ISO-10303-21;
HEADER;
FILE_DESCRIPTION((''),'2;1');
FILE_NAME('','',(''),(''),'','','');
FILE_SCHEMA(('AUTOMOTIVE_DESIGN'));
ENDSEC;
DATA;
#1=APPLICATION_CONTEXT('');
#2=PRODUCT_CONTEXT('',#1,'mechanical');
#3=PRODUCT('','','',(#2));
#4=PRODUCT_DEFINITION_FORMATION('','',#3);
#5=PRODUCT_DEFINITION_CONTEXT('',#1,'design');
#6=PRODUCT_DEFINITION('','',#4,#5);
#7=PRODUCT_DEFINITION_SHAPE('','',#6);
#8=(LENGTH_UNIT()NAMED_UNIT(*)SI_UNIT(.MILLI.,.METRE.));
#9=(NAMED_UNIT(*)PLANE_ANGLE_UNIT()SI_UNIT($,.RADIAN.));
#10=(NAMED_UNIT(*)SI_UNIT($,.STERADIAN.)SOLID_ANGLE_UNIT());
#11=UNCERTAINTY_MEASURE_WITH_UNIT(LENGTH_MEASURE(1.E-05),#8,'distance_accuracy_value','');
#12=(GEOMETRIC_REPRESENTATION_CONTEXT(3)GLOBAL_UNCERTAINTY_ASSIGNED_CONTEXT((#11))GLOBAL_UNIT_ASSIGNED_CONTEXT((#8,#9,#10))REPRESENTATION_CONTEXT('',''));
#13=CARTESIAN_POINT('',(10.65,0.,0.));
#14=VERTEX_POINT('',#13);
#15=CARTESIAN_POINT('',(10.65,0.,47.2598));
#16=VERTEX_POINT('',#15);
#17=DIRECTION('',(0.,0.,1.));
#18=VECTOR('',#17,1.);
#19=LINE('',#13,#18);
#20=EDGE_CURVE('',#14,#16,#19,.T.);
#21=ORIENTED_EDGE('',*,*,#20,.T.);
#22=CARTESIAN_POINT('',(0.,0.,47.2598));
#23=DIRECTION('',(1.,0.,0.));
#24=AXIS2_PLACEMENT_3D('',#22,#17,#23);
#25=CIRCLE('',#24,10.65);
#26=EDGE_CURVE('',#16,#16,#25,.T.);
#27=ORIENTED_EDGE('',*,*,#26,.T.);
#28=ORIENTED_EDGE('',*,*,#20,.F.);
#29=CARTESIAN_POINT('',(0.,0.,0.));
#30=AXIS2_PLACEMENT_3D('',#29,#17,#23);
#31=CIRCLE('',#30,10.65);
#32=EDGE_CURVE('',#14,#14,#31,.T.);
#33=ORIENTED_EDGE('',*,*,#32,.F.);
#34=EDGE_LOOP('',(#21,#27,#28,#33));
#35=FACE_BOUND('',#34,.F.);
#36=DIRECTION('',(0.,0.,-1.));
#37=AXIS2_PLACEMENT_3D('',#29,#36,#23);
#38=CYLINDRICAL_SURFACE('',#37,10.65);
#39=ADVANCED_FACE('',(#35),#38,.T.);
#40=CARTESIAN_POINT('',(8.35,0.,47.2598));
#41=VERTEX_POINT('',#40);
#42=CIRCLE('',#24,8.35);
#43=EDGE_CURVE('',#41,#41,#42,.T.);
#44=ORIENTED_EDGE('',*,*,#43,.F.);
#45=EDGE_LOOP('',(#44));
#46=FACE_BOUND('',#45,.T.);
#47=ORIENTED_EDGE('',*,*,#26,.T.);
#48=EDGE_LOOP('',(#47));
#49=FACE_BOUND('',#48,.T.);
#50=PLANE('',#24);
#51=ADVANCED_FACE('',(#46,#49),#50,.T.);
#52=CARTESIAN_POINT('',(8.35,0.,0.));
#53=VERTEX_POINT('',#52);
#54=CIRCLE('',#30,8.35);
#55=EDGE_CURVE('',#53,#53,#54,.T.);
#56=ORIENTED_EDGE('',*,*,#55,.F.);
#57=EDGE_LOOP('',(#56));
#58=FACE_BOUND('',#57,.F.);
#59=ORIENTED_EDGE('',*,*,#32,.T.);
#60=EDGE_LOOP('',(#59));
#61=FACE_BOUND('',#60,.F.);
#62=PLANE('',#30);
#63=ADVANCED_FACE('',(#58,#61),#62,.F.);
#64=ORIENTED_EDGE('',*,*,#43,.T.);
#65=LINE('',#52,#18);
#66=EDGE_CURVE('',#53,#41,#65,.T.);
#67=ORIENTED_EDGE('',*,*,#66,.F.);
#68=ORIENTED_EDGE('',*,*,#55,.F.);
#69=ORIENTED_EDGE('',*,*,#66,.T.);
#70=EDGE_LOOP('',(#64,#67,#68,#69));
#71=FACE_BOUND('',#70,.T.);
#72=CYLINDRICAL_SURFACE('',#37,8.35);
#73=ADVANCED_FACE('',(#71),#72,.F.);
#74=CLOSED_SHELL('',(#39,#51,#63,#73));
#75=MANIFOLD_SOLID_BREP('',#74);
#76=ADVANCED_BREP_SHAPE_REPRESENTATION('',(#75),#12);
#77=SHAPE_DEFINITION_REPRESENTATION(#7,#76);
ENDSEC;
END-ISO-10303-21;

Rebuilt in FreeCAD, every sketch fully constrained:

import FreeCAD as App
import Part
import Sketcher

V = App.Vector
Q = App.Units.Quantity

doc = App.newDocument("Part")
body = doc.addObject("PartDesign::Body", "Body")

# Sketch on XY plane
sketch1 = body.newObject("Sketcher::SketchObject", "Sketch")
sketch1.AttachmentSupport = (doc.getObject("XY_Plane"), [""])
sketch1.MapMode = "FlatFace"
sketch1.addGeometry(Part.Circle(V(0, 0, 0), V(0, 0, 1), 11), False)
sketch1.addGeometry(Part.Circle(V(0, 0, 0), V(0, 0, 1), 8), False)
sketch1.addConstraint(Sketcher.Constraint("Coincident", 0, 3, -1, 1))
sketch1.addConstraint(Sketcher.Constraint("Coincident", 1, 3, -1, 1))
sketch1.addConstraint(Sketcher.Constraint("Diameter", 0, Q("21.3 mm")))
sketch1.addConstraint(Sketcher.Constraint("Diameter", 1, Q("16.7 mm")))
pad1 = body.newObject("PartDesign::Pad", "Pad")
pad1.Profile = sketch1
pad1.Length = 47.2598

doc.recompute()
